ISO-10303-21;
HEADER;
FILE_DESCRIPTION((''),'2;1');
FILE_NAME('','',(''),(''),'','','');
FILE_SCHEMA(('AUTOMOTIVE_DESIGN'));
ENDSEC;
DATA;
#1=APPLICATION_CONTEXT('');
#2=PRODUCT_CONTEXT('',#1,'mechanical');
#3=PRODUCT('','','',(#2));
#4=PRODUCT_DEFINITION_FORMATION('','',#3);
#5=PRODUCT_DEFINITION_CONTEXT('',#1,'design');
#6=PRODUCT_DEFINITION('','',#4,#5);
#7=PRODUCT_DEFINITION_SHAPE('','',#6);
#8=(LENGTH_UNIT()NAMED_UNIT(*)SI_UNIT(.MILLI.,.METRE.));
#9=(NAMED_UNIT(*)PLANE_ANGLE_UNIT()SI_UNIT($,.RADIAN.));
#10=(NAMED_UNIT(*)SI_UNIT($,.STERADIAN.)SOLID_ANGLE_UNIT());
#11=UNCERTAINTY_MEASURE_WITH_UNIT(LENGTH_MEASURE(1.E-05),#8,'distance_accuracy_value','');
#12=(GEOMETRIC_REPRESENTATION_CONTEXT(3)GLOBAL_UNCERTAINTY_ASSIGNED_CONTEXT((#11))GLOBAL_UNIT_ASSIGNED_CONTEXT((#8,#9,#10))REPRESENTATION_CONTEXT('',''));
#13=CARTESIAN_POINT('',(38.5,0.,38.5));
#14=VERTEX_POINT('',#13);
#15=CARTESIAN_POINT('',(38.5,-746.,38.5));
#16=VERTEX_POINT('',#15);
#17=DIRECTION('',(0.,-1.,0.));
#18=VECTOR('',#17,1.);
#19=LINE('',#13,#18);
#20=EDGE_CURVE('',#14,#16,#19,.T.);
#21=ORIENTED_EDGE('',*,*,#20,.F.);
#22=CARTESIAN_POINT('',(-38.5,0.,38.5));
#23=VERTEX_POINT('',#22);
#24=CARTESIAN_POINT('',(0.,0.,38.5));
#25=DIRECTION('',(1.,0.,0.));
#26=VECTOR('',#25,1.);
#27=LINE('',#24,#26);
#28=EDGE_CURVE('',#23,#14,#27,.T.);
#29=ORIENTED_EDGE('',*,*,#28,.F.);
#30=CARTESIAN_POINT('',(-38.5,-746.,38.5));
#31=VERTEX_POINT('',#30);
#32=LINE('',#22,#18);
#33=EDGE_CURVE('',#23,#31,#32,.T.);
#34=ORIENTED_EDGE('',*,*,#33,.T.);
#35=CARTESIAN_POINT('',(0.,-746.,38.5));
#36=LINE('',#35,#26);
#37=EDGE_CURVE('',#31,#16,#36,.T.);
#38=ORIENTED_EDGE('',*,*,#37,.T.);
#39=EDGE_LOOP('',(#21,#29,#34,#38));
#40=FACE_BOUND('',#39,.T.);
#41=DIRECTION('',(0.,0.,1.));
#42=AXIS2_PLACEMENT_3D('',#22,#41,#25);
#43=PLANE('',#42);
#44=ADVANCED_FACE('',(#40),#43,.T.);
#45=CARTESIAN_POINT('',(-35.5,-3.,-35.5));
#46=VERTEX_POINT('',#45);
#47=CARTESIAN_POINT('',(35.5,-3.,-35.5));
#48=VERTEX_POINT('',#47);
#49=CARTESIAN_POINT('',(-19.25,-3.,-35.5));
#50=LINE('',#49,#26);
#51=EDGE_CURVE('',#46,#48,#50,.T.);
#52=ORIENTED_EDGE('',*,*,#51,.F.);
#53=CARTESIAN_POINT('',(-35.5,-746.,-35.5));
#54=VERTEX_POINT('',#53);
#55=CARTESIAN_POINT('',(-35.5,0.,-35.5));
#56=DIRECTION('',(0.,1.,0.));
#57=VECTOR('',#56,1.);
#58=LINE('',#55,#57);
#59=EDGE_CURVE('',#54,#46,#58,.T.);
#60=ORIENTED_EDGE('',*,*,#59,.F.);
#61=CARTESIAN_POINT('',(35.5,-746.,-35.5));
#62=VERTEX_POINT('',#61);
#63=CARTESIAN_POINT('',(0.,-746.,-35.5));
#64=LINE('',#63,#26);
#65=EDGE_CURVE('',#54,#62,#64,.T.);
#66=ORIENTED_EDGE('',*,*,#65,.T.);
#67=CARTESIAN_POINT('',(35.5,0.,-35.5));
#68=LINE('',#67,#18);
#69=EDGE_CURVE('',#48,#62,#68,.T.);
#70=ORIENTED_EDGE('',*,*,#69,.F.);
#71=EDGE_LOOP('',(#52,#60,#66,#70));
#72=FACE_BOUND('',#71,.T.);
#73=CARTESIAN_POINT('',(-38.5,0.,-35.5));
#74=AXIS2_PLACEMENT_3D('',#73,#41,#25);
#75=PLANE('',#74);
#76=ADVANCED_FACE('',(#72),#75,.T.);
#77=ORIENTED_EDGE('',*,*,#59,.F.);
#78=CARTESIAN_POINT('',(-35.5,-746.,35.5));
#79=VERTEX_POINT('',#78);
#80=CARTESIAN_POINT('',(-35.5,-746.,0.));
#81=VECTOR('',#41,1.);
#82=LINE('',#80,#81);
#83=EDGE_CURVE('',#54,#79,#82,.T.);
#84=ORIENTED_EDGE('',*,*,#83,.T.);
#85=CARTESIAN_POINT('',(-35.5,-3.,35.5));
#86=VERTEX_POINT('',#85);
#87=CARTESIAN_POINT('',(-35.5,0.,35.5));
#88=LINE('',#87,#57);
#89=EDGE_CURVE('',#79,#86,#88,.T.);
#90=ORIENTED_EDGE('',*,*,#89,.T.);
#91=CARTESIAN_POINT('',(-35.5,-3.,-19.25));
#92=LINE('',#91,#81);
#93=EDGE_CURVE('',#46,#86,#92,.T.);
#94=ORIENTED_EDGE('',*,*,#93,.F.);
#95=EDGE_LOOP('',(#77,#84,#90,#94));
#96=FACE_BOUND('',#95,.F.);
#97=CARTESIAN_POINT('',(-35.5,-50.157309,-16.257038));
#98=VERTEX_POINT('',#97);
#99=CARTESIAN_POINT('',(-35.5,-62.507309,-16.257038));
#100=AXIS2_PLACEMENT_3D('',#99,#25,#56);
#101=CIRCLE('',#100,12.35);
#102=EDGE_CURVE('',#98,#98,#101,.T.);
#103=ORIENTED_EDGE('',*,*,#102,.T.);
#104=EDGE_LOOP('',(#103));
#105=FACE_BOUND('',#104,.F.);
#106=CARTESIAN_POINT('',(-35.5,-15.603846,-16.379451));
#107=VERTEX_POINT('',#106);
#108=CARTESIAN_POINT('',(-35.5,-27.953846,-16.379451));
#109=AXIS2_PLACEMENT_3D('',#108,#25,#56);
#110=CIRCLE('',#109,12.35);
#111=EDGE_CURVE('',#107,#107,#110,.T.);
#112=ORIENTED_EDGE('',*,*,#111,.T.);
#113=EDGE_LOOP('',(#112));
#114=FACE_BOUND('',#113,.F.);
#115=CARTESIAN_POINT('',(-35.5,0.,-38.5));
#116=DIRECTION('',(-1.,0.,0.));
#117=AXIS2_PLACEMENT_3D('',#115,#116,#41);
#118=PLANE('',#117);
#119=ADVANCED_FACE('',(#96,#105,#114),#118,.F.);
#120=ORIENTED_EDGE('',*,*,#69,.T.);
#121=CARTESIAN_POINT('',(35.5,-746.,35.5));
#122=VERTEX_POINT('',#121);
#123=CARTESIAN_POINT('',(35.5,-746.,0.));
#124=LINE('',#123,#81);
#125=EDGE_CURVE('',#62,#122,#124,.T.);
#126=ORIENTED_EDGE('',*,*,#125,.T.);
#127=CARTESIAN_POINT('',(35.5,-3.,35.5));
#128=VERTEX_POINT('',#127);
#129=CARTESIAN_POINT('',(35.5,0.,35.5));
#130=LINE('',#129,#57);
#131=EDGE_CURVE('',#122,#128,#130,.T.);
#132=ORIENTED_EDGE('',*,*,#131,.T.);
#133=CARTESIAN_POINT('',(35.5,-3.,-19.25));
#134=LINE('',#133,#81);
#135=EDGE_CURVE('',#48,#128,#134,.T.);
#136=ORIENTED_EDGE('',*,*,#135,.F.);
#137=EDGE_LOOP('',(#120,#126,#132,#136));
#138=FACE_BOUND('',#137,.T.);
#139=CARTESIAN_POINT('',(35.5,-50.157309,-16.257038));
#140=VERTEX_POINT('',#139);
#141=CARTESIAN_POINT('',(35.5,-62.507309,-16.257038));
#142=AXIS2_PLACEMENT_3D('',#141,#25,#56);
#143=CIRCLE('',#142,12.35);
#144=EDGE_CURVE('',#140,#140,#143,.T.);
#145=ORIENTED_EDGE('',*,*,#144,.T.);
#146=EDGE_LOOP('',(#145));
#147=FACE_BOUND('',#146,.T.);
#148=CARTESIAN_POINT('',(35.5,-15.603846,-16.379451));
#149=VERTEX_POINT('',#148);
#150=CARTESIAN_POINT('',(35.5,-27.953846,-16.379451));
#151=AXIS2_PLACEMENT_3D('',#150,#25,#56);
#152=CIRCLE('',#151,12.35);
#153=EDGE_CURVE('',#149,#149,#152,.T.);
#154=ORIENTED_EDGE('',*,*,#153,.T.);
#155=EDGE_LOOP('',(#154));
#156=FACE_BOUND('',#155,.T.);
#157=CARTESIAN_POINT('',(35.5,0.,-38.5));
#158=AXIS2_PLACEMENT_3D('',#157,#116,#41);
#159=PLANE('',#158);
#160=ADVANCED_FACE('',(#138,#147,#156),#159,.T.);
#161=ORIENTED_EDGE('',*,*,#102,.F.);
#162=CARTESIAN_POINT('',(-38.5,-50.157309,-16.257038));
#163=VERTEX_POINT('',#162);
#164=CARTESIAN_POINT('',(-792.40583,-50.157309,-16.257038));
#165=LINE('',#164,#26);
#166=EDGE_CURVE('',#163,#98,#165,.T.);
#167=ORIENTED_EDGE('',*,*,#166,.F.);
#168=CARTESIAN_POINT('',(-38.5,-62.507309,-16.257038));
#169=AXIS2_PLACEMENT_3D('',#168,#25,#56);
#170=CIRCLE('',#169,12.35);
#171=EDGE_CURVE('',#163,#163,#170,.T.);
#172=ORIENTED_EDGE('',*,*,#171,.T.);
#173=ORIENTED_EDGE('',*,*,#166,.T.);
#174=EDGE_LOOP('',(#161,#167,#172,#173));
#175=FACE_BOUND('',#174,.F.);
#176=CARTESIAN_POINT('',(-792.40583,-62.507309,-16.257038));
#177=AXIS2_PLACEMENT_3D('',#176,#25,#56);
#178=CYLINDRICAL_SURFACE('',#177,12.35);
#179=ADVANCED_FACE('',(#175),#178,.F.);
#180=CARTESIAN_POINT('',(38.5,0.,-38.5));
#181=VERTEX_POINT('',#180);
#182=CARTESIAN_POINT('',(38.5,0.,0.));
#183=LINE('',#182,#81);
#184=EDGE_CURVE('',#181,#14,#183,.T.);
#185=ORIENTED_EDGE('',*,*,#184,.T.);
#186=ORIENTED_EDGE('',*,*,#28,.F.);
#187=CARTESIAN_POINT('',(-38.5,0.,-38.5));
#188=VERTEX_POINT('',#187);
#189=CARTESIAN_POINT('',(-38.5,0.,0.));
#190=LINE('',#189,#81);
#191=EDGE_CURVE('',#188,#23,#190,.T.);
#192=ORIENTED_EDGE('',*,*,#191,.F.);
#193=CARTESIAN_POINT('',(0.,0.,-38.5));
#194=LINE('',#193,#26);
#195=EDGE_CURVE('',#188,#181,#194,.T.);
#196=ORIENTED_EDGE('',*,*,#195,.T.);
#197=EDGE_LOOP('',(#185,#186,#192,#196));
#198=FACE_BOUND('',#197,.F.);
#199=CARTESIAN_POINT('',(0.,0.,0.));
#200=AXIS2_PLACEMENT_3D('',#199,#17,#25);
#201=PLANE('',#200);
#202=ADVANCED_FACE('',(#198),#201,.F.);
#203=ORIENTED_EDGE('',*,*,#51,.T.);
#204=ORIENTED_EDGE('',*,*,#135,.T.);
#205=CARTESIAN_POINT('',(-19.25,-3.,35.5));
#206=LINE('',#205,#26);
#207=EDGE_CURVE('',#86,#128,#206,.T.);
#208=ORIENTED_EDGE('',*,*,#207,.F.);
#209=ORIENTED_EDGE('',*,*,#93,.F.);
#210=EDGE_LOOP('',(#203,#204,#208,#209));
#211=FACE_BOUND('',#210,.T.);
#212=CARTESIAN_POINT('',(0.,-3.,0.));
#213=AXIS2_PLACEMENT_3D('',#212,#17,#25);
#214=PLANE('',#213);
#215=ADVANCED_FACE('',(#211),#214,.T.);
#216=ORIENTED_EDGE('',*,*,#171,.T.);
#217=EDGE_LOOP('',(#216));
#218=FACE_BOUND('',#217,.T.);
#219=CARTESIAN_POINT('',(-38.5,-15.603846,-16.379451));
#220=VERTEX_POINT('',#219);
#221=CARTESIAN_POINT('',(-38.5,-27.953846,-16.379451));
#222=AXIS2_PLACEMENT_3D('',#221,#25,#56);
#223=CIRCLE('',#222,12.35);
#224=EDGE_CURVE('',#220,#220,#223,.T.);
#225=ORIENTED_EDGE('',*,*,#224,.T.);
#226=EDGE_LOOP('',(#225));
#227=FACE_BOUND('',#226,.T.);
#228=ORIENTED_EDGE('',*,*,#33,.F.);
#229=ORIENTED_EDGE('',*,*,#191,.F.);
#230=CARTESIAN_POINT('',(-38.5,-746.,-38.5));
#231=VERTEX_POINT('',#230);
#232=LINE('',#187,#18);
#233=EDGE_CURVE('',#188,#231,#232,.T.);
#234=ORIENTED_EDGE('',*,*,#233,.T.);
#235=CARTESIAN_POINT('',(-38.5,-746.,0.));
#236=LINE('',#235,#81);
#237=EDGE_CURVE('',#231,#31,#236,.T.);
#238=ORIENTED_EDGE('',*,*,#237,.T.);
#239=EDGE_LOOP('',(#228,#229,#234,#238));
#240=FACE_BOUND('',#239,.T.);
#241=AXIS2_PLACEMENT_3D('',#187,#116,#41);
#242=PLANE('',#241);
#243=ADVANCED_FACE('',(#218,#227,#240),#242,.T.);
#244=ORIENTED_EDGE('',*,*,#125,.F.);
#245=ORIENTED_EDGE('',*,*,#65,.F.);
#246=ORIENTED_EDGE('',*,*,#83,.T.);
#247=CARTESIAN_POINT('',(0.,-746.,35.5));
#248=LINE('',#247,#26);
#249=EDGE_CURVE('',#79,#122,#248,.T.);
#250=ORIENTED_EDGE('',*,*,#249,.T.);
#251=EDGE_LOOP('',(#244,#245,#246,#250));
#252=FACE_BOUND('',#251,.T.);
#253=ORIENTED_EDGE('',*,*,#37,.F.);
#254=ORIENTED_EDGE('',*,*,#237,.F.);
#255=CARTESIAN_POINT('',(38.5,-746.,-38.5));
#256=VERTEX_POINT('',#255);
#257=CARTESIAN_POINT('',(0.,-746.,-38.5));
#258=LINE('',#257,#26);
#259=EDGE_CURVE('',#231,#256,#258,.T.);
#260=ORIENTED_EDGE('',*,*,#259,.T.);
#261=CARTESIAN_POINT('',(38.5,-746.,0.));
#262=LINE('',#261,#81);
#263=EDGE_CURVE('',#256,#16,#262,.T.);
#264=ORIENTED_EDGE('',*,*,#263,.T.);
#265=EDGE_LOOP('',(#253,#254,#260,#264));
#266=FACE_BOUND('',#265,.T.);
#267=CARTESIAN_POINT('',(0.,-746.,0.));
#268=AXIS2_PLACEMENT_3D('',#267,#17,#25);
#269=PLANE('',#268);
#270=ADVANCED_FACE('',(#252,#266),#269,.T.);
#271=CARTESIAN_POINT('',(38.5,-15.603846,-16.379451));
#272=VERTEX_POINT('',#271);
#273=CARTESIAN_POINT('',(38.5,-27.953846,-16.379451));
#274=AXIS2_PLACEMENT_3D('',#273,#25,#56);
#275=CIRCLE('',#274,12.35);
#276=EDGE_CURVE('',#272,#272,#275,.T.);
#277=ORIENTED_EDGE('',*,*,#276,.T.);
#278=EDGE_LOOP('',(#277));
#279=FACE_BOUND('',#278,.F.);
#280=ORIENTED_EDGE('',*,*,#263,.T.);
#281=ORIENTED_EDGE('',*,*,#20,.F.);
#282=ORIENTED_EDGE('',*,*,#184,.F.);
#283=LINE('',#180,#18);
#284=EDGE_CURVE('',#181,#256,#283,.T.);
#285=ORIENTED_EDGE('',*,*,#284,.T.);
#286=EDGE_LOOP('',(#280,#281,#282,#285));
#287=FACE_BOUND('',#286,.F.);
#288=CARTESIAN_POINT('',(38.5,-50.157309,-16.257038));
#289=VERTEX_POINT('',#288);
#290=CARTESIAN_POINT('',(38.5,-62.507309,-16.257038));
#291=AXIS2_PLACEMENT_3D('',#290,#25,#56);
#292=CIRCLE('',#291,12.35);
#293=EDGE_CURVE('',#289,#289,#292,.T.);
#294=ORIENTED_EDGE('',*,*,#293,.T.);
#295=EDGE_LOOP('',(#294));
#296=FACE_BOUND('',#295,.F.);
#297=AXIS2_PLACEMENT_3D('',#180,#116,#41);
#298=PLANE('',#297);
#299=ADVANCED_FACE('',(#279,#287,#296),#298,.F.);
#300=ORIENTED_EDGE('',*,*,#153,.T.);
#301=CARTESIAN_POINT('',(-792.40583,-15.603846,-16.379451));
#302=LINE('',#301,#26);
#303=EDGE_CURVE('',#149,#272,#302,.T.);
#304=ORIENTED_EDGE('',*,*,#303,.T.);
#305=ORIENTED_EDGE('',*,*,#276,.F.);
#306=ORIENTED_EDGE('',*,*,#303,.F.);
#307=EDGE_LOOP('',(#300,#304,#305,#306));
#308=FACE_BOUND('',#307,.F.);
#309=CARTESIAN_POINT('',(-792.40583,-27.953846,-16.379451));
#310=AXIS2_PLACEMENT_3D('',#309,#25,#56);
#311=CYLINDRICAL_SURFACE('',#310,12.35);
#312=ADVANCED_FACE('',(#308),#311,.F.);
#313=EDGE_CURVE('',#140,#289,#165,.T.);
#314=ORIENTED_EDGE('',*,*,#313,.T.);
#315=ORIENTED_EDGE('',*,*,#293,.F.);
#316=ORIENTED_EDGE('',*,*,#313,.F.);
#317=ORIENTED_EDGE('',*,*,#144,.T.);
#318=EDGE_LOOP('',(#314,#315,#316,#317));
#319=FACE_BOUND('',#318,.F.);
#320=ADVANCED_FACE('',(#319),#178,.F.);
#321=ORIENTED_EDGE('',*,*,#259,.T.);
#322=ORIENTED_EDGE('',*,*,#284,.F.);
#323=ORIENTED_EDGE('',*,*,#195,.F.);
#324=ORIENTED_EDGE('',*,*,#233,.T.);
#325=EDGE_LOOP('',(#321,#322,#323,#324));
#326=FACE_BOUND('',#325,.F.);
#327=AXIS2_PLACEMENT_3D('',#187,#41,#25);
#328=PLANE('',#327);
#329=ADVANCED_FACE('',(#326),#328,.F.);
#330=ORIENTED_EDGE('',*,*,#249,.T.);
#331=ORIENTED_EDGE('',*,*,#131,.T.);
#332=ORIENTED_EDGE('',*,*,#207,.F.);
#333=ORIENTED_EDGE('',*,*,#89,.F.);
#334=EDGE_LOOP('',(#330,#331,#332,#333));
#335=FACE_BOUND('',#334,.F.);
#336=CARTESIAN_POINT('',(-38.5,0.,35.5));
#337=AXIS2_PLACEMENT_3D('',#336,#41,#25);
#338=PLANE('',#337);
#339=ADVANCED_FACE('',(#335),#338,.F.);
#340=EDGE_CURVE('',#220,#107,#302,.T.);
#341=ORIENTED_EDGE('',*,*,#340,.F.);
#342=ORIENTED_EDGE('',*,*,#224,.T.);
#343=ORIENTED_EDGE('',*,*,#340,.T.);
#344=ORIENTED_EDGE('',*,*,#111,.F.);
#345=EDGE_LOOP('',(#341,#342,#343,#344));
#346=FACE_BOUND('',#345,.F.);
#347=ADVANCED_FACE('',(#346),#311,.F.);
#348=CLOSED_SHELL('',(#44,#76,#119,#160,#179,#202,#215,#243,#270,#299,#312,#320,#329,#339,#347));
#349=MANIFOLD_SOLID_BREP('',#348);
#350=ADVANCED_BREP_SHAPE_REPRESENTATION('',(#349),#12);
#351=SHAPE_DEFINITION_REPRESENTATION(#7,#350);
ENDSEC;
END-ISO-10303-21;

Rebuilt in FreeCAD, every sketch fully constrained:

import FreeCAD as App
import Part
import Sketcher

V = App.Vector
Q = App.Units.Quantity


def faces_at(feature, points):
    """Names of the faces that lie closest to the given points."""
    faces = feature.Shape.Faces
    near = lambda p: min(range(len(faces)), key=lambda i: faces[i].distToShape(Part.Vertex(*p))[0])
    return sorted({f"Face{near(p) + 1}" for p in points})

doc = App.newDocument("Part")
params = doc.addObject("Spreadsheet::Sheet", "Params")
for row, (alias, value) in enumerate([
    ("sketch1_width", "77 mm"),
    ("pad1_length", "746 mm"),
    ("thickness_wall", "3 mm"),
    ("sketch2_diameter", "24.7 mm"),
    ("hole_diameter", "24.7 mm"),
    ("sketch3_diameter", "24.7 mm"),
    ("hole2_diameter", "24.7 mm"),
], start=1):
    params.set(f"A{row}", alias)
    params.set(f"B{row}", "=" + value)
    params.setAlias(f"B{row}", alias)

body = doc.addObject("PartDesign::Body", "Body")

# Sketch on XZ plane
sketch1 = body.newObject("Sketcher::SketchObject", "Sketch")
sketch1.AttachmentSupport = (doc.getObject("XZ_Plane"), [""])
sketch1.MapMode = "FlatFace"
sketch1.addGeometry([
    Part.LineSegment(V(-38, 38, 0), V(-38, -38, 0)),
    Part.LineSegment(V(-38, -38, 0), V(38, -38, 0)),
    Part.LineSegment(V(38, -38, 0), V(38, 38, 0)),
    Part.LineSegment(V(38, 38, 0), V(-38, 38, 0)),
], False)
sketch1.addConstraint([
    Sketcher.Constraint("Coincident", 0, 2, 1, 1),
    Sketcher.Constraint("Coincident", 1, 2, 2, 1),
    Sketcher.Constraint("Coincident", 2, 2, 3, 1),
    Sketcher.Constraint("Coincident", 3, 2, 0, 1),
    Sketcher.Constraint("Vertical", 0),
    Sketcher.Constraint("Horizontal", 1),
    Sketcher.Constraint("Vertical", 2),
    Sketcher.Constraint("Horizontal", 3),
    Sketcher.Constraint("Symmetric", 0, 2, 2, 2, -1, 1),
    Sketcher.Constraint("Equal", 3, 0),
    Sketcher.Constraint("DistanceX", 1, 1, 1, 2, Q("77 mm")),
])
sketch1.setExpression("Constraints[10]", "Params.sketch1_width")
pad1 = body.newObject("PartDesign::Pad", "Pad")
pad1.Profile = sketch1
pad1.setExpression("Length", "Params.pad1_length")
doc.recompute()

thickness = body.newObject("PartDesign::Thickness", "Thickness")
thickness.Base = (pad1, faces_at(pad1, [(0, -746, 0)]))
thickness.setExpression("Value", "Params.thickness_wall")
thickness.Reversed = True
thickness.Join = "Arc"

# Sketch on YZ plane
sketch2 = body.newObject("Sketcher::SketchObject", "Sketch001")
sketch2.AttachmentSupport = (doc.getObject("YZ_Plane"), [""])
sketch2.MapMode = "FlatFace"
sketch2.AttachmentOffset = App.Placement(V(0, 0, -38.5), App.Rotation())
sketch2.addGeometry(Part.Circle(V(-28, -16, 0), V(0, 0, 1), 12), False)
sketch2.addConstraint([
    Sketcher.Constraint("Diameter", 0, Q("24.7 mm")),
    Sketcher.Constraint("DistanceY", 0, 3, -1, 1, Q("16.379451 mm")),
    Sketcher.Constraint("DistanceX", 0, 3, -1, 1, Q("27.953846 mm")),
])
sketch2.setExpression("Constraints[0]", "Params.sketch2_diameter")
doc.recompute()
hole = body.newObject("PartDesign::Hole", "Hole")
hole.Profile = sketch2
hole.ThreadType = "None"
hole.setExpression("Diameter", "Params.hole_diameter")
hole.DepthType = "ThroughAll"
hole.Reversed = True

# Sketch on YZ plane
sketch3 = body.newObject("Sketcher::SketchObject", "Sketch002")
sketch3.AttachmentSupport = (doc.getObject("YZ_Plane"), [""])
sketch3.MapMode = "FlatFace"
sketch3.AttachmentOffset = App.Placement(V(0, 0, -38.5), App.Rotation())
sketch3.addGeometry(Part.Circle(V(-63, -16, 0), V(0, 0, 1), 12), False)
sketch3.addConstraint([
    Sketcher.Constraint("Diameter", 0, Q("24.7 mm")),
    Sketcher.Constraint("DistanceX", 0, 3, -1, 1, Q("62.507309 mm")),
    Sketcher.Constraint("DistanceY", 0, 3, -1, 1, Q("16.257038 mm")),
])
sketch3.setExpression("Constraints[0]", "Params.sketch3_diameter")
doc.recompute()
hole2 = body.newObject("PartDesign::Hole", "Hole001")
hole2.Profile = sketch3
hole2.ThreadType = "None"
hole2.setExpression("Diameter", "Params.hole2_diameter")
hole2.DepthType = "ThroughAll"
hole2.Reversed = True

doc.recompute()
